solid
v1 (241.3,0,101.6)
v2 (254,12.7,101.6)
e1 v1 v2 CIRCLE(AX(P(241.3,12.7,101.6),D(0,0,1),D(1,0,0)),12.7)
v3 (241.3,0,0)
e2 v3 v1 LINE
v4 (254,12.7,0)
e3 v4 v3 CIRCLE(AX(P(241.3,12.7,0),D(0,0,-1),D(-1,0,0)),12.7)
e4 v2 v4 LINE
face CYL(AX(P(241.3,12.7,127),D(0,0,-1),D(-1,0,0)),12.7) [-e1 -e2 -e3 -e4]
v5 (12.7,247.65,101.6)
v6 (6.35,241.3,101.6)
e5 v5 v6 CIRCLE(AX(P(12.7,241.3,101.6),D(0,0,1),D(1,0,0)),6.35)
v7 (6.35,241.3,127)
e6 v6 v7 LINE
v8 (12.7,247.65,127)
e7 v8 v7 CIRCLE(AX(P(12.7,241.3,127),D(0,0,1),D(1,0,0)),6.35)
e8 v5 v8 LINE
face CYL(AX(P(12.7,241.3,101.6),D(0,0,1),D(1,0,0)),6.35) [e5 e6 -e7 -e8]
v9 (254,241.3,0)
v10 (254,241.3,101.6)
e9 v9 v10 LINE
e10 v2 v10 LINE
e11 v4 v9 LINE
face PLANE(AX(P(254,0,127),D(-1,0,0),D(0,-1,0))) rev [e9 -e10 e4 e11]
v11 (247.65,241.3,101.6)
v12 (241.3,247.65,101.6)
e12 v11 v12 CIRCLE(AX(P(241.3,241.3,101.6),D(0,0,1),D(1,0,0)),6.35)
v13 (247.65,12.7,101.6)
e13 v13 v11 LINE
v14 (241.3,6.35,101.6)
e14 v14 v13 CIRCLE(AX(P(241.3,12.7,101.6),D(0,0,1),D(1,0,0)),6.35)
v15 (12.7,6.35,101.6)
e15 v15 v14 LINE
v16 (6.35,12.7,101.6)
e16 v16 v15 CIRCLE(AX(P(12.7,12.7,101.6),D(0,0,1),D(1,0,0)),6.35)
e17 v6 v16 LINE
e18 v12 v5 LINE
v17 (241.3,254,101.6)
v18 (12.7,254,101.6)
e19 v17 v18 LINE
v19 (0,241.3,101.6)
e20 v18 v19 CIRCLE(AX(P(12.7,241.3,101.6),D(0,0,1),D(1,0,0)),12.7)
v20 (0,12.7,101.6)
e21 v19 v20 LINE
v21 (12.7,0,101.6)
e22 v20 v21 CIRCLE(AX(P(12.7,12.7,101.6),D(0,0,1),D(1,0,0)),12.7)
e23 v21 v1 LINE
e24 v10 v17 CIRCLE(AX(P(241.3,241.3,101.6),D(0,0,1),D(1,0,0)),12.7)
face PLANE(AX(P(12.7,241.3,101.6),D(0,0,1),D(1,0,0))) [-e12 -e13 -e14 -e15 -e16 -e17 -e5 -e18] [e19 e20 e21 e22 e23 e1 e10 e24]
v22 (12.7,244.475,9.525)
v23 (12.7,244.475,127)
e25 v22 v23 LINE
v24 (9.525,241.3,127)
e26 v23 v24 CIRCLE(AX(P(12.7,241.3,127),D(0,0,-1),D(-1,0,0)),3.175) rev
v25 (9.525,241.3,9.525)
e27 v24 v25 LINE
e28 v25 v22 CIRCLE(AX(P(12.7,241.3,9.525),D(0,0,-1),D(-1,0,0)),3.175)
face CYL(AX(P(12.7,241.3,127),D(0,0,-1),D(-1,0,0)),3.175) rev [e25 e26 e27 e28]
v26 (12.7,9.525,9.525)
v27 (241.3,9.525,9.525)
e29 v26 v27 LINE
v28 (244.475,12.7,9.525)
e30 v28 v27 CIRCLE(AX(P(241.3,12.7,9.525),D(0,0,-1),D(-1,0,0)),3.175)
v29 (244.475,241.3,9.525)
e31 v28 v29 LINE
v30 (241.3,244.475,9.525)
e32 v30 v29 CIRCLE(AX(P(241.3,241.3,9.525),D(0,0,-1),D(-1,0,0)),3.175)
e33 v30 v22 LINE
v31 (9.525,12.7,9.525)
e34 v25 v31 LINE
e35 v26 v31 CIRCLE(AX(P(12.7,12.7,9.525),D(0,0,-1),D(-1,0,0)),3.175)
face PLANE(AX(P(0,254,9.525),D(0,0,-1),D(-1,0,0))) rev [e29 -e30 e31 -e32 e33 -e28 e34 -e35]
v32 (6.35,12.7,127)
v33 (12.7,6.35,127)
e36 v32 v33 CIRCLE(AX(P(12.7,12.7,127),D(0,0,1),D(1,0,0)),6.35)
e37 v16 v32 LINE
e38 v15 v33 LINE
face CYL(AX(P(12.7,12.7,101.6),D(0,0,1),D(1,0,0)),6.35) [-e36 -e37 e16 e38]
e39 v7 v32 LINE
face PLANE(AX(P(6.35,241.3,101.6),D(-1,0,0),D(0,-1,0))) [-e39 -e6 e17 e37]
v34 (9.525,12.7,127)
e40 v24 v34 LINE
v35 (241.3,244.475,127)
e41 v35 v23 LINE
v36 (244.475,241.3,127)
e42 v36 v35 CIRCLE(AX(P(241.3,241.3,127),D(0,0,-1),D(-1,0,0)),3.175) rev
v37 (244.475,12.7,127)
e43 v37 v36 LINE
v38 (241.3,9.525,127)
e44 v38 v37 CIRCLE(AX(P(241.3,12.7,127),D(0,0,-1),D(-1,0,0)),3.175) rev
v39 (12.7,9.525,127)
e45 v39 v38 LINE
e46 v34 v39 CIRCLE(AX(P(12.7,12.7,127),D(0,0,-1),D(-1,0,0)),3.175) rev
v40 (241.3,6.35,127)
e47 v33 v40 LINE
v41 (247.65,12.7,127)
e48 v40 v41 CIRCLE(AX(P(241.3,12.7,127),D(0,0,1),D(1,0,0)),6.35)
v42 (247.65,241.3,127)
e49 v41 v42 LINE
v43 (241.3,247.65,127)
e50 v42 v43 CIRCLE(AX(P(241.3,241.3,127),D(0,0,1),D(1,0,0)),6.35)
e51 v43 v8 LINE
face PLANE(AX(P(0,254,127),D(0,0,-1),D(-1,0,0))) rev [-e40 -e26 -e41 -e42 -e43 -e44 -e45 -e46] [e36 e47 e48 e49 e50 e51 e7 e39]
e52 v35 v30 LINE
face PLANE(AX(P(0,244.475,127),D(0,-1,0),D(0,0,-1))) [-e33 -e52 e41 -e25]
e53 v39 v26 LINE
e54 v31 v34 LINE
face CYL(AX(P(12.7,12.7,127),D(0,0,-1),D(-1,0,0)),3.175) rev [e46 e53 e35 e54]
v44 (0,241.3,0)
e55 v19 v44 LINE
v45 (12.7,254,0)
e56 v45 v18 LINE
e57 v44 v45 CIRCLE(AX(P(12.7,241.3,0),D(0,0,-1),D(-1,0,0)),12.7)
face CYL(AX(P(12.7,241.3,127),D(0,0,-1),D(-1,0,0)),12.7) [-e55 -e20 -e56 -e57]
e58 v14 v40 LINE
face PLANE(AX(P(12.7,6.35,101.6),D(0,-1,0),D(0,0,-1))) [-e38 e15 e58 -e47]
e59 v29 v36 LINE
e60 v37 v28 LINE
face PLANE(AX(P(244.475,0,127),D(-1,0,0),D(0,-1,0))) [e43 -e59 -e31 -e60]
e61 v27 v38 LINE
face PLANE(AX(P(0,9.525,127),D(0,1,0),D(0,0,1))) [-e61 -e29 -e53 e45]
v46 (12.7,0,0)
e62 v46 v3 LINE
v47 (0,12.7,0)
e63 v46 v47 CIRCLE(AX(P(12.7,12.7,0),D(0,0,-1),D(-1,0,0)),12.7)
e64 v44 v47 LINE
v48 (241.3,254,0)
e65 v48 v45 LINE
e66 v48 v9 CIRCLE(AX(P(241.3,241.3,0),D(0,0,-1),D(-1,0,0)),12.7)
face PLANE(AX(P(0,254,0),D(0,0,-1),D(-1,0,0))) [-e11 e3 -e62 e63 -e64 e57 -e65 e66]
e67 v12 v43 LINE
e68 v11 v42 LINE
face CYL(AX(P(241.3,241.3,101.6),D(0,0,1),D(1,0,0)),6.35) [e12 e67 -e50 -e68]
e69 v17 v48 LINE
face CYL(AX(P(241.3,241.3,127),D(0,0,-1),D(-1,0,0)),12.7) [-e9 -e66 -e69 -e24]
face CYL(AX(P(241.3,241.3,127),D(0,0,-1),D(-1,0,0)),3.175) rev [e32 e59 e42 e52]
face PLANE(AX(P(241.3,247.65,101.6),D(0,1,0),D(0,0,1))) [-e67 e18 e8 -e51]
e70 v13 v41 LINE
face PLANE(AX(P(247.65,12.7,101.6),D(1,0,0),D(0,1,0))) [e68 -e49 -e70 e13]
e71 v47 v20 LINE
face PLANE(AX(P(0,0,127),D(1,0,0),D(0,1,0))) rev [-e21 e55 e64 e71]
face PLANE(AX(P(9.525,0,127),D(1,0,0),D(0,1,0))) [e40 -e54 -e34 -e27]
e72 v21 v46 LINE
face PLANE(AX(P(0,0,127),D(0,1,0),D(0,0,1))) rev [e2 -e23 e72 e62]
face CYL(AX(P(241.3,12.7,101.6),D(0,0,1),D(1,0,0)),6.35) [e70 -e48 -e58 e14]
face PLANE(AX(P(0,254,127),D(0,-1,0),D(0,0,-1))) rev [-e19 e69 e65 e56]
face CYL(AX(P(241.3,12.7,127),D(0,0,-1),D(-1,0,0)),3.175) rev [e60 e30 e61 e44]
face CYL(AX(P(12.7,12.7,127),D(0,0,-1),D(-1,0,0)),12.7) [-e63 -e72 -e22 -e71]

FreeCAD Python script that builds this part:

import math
import FreeCAD as App
import Part
import Sketcher

V = App.Vector
Q = App.Units.Quantity


def edges_at(feature, points):
    """Names of the edges that pass closest to the given points."""
    edges = feature.Shape.Edges
    near = lambda p: min(range(len(edges)), key=lambda i: edges[i].distToShape(Part.Vertex(*p))[0])
    return sorted({f"Edge{near(p) + 1}" for p in points})


def faces_at(feature, points):
    """Names of the faces that lie closest to the given points."""
    faces = feature.Shape.Faces
    near = lambda p: min(range(len(faces)), key=lambda i: faces[i].distToShape(Part.Vertex(*p))[0])
    return sorted({f"Face{near(p) + 1}" for p in points})


def add_polygon(sketch, points):
    """Adds a closed chain of lines whose ends are joined by coincident constraints."""
    first, n = sketch.GeometryCount, len(points)
    for a, b in zip(points, points[1:] + points[:1]):
        sketch.addGeometry(Part.LineSegment(App.Vector(*a, 0), App.Vector(*b, 0)), False)
    for i in range(n):
        sketch.addConstraint(Sketcher.Constraint("Coincident", first + i, 2, first + (i + 1) % n, 1))

doc = App.newDocument("Part")
params = doc.addObject("Spreadsheet::Sheet", "Params")
for row, (alias, value) in enumerate([
    ("sketch1_width", "10 in"),
    ("pad1_length", "5 in"),
    ("fillet_radius", "0.5 in"),
    ("thickness_wall", "0.375 in"),
    ("sketch2_radius", "0.5 in"),
    ("sketch2_width", "9 in"),
    ("sketch2_radius2", "0.25 in"),
    ("pocket1_length", "1 in"),
], start=1):
    params.set(f"A{row}", alias)
    params.set(f"B{row}", "=" + value)
    params.setAlias(f"B{row}", alias)

body = doc.addObject("PartDesign::Body", "Body")

# Sketch on XY plane
sketch1 = body.newObject("Sketcher::SketchObject", "Sketch")
sketch1.AttachmentSupport = (doc.getObject("XY_Plane"), [""])
sketch1.MapMode = "FlatFace"
add_polygon(sketch1, [(0, 254), (0, 0), (254, 0), (254, 254)])  # lines 0-3
sketch1.addConstraint(Sketcher.Constraint("Vertical", 0))
sketch1.addConstraint(Sketcher.Constraint("Horizontal", 1))
sketch1.addConstraint(Sketcher.Constraint("Vertical", 2))
sketch1.addConstraint(Sketcher.Constraint("Horizontal", 3))
sketch1.addConstraint(Sketcher.Constraint("Coincident", 0, 2, -1, 1))
sketch1.addConstraint(Sketcher.Constraint("Equal", 3, 0))
sketch1.addConstraint(Sketcher.Constraint("DistanceX", 1, 1, 1, 2, Q("10 in")))
sketch1.setExpression("Constraints[10]", "Params.sketch1_width")
pad1 = body.newObject("PartDesign::Pad", "Pad")
pad1.Profile = sketch1
pad1.setExpression("Length", "Params.pad1_length")
doc.recompute()

fillet = body.newObject("PartDesign::Fillet", "Fillet")
fillet.Base = (pad1, edges_at(pad1, [
    (0, 254, 63.5),
    (254, 254, 63.5),
    (254, 0, 63.5),
    (0, 0, 63.5),
]))
fillet.setExpression("Radius", "Params.fillet_radius")
doc.recompute()

thickness = body.newObject("PartDesign::Thickness", "Thickness")
thickness.Base = (fillet, faces_at(fillet, [(127, 127, 127)]))
thickness.setExpression("Value", "Params.thickness_wall")
thickness.Reversed = True
thickness.Join = "Intersection"

# Sketch on XY plane
sketch2 = body.newObject("Sketcher::SketchObject", "Sketch001")
sketch2.AttachmentSupport = (doc.getObject("XY_Plane"), [""])
sketch2.MapMode = "FlatFace"
sketch2.AttachmentOffset = App.Placement(V(0, 0, 5 * 25.4), App.Rotation())
sketch2.addGeometry(Part.LineSegment(V(0, 241, 0), V(0, 13, 0)), False)
sketch2.addGeometry(Part.ArcOfCircle(Part.Circle(V(13, 13, 0), V(0, 0, 1), 13), math.radians(180), math.radians(270)), False)
sketch2.addGeometry(Part.LineSegment(V(13, 0, 0), V(241, 0, 0)), False)
sketch2.addGeometry(Part.ArcOfCircle(Part.Circle(V(241, 13, 0), V(0, 0, 1), 13), math.radians(-90), math.radians(0)), False)
sketch2.addGeometry(Part.LineSegment(V(254, 13, 0), V(254, 241, 0)), False)
sketch2.addGeometry(Part.ArcOfCircle(Part.Circle(V(241, 241, 0), V(0, 0, 1), 13), math.radians(0), math.radians(90)), False)
sketch2.addGeometry(Part.LineSegment(V(241, 254, 0), V(13, 254, 0)), False)
sketch2.addGeometry(Part.ArcOfCircle(Part.Circle(V(13, 241, 0), V(0, 0, 1), 13), math.radians(90), math.radians(180)), False)
sketch2.addGeometry(Part.LineSegment(V(6, 13, 0), V(6, 241, 0)), False)
sketch2.addGeometry(Part.ArcOfCircle(Part.Circle(V(13, 241, 0), V(0, 0, 1), 6), math.radians(90), math.radians(180)), False)
sketch2.addGeometry(Part.LineSegment(V(13, 248, 0), V(241, 248, 0)), False)
sketch2.addGeometry(Part.ArcOfCircle(Part.Circle(V(241, 241, 0), V(0, 0, 1), 6), math.radians(0), math.radians(90)), False)
sketch2.addGeometry(Part.LineSegment(V(248, 241, 0), V(248, 13, 0)), False)
sketch2.addGeometry(Part.ArcOfCircle(Part.Circle(V(241, 13, 0), V(0, 0, 1), 6), math.radians(-90), math.radians(0)), False)
sketch2.addGeometry(Part.LineSegment(V(241, 6, 0), V(13, 6, 0)), False)
sketch2.addGeometry(Part.ArcOfCircle(Part.Circle(V(13, 13, 0), V(0, 0, 1), 6), math.radians(180), math.radians(270)), False)
sketch2.addConstraint(Sketcher.Constraint("Tangent", 0, 2, 1, 1))
sketch2.addConstraint(Sketcher.Constraint("Tangent", 1, 2, 2, 1))
sketch2.addConstraint(Sketcher.Constraint("Tangent", 2, 2, 3, 1))
sketch2.addConstraint(Sketcher.Constraint("Tangent", 3, 2, 4, 1))
sketch2.addConstraint(Sketcher.Constraint("Tangent", 4, 2, 5, 1))
sketch2.addConstraint(Sketcher.Constraint("Tangent", 5, 2, 6, 1))
sketch2.addConstraint(Sketcher.Constraint("Tangent", 6, 2, 7, 1))
sketch2.addConstraint(Sketcher.Constraint("Tangent", 7, 2, 0, 1))
sketch2.addConstraint(Sketcher.Constraint("Tangent", 8, 2, 9, 2))
sketch2.addConstraint(Sketcher.Constraint("Tangent", 9, 1, 10, 1))
sketch2.addConstraint(Sketcher.Constraint("Tangent", 10, 2, 11, 2))
sketch2.addConstraint(Sketcher.Constraint("Tangent", 11, 1, 12, 1))
sketch2.addConstraint(Sketcher.Constraint("Tangent", 12, 2, 13, 2))
sketch2.addConstraint(Sketcher.Constraint("Tangent", 13, 1, 14, 1))
sketch2.addConstraint(Sketcher.Constraint("Tangent", 14, 2, 15, 2))
sketch2.addConstraint(Sketcher.Constraint("Tangent", 15, 1, 8, 1))
sketch2.addConstraint(Sketcher.Constraint("Vertical", 0))
sketch2.addConstraint(Sketcher.Constraint("Horizontal", 2))
sketch2.addConstraint(Sketcher.Constraint("Vertical", 4))
sketch2.addConstraint(Sketcher.Constraint("Horizontal", 6))
sketch2.addConstraint(Sketcher.Constraint("Vertical", 8))
sketch2.addConstraint(Sketcher.Constraint("Horizontal", 10))
sketch2.addConstraint(Sketcher.Constraint("Vertical", 12))
sketch2.addConstraint(Sketcher.Constraint("Horizontal", 14))
sketch2.addConstraint(Sketcher.Constraint("Coincident", 9, 3, 7, 3))
sketch2.addConstraint(Sketcher.Constraint("Coincident", 11, 3, 5, 3))
sketch2.addConstraint(Sketcher.Constraint("Coincident", 13, 3, 3, 3))
sketch2.addConstraint(Sketcher.Constraint("Equal", 1, 3))
sketch2.addConstraint(Sketcher.Constraint("Equal", 3, 5))
sketch2.addConstraint(Sketcher.Constraint("Equal", 5, 7))
sketch2.addConstraint(Sketcher.Constraint("Equal", 13, 15))
sketch2.addConstraint(Sketcher.Constraint("PointOnObject", 0, 2, -2))
sketch2.addConstraint(Sketcher.Constraint("PointOnObject", 1, 2, -1))
sketch2.addConstraint(Sketcher.Constraint("Equal", 14, 0))
sketch2.addConstraint(Sketcher.Constraint("Radius", 1, Q("0.5 in")))
sketch2.addConstraint(Sketcher.Constraint("DistanceX", 2, 1, 2, 2, Q("9 in")))
sketch2.addConstraint(Sketcher.Constraint("Radius", 9, Q("0.25 in")))
sketch2.setExpression("Constraints[34]", "Params.sketch2_radius")
sketch2.setExpression("Constraints[35]", "Params.sketch2_width")
sketch2.setExpression("Constraints[36]", "Params.sketch2_radius2")
pocket1 = body.newObject("PartDesign::Pocket", "Pocket")
pocket1.Profile = sketch2
pocket1.setExpression("Length", "Params.pocket1_length")

doc.recompute()
